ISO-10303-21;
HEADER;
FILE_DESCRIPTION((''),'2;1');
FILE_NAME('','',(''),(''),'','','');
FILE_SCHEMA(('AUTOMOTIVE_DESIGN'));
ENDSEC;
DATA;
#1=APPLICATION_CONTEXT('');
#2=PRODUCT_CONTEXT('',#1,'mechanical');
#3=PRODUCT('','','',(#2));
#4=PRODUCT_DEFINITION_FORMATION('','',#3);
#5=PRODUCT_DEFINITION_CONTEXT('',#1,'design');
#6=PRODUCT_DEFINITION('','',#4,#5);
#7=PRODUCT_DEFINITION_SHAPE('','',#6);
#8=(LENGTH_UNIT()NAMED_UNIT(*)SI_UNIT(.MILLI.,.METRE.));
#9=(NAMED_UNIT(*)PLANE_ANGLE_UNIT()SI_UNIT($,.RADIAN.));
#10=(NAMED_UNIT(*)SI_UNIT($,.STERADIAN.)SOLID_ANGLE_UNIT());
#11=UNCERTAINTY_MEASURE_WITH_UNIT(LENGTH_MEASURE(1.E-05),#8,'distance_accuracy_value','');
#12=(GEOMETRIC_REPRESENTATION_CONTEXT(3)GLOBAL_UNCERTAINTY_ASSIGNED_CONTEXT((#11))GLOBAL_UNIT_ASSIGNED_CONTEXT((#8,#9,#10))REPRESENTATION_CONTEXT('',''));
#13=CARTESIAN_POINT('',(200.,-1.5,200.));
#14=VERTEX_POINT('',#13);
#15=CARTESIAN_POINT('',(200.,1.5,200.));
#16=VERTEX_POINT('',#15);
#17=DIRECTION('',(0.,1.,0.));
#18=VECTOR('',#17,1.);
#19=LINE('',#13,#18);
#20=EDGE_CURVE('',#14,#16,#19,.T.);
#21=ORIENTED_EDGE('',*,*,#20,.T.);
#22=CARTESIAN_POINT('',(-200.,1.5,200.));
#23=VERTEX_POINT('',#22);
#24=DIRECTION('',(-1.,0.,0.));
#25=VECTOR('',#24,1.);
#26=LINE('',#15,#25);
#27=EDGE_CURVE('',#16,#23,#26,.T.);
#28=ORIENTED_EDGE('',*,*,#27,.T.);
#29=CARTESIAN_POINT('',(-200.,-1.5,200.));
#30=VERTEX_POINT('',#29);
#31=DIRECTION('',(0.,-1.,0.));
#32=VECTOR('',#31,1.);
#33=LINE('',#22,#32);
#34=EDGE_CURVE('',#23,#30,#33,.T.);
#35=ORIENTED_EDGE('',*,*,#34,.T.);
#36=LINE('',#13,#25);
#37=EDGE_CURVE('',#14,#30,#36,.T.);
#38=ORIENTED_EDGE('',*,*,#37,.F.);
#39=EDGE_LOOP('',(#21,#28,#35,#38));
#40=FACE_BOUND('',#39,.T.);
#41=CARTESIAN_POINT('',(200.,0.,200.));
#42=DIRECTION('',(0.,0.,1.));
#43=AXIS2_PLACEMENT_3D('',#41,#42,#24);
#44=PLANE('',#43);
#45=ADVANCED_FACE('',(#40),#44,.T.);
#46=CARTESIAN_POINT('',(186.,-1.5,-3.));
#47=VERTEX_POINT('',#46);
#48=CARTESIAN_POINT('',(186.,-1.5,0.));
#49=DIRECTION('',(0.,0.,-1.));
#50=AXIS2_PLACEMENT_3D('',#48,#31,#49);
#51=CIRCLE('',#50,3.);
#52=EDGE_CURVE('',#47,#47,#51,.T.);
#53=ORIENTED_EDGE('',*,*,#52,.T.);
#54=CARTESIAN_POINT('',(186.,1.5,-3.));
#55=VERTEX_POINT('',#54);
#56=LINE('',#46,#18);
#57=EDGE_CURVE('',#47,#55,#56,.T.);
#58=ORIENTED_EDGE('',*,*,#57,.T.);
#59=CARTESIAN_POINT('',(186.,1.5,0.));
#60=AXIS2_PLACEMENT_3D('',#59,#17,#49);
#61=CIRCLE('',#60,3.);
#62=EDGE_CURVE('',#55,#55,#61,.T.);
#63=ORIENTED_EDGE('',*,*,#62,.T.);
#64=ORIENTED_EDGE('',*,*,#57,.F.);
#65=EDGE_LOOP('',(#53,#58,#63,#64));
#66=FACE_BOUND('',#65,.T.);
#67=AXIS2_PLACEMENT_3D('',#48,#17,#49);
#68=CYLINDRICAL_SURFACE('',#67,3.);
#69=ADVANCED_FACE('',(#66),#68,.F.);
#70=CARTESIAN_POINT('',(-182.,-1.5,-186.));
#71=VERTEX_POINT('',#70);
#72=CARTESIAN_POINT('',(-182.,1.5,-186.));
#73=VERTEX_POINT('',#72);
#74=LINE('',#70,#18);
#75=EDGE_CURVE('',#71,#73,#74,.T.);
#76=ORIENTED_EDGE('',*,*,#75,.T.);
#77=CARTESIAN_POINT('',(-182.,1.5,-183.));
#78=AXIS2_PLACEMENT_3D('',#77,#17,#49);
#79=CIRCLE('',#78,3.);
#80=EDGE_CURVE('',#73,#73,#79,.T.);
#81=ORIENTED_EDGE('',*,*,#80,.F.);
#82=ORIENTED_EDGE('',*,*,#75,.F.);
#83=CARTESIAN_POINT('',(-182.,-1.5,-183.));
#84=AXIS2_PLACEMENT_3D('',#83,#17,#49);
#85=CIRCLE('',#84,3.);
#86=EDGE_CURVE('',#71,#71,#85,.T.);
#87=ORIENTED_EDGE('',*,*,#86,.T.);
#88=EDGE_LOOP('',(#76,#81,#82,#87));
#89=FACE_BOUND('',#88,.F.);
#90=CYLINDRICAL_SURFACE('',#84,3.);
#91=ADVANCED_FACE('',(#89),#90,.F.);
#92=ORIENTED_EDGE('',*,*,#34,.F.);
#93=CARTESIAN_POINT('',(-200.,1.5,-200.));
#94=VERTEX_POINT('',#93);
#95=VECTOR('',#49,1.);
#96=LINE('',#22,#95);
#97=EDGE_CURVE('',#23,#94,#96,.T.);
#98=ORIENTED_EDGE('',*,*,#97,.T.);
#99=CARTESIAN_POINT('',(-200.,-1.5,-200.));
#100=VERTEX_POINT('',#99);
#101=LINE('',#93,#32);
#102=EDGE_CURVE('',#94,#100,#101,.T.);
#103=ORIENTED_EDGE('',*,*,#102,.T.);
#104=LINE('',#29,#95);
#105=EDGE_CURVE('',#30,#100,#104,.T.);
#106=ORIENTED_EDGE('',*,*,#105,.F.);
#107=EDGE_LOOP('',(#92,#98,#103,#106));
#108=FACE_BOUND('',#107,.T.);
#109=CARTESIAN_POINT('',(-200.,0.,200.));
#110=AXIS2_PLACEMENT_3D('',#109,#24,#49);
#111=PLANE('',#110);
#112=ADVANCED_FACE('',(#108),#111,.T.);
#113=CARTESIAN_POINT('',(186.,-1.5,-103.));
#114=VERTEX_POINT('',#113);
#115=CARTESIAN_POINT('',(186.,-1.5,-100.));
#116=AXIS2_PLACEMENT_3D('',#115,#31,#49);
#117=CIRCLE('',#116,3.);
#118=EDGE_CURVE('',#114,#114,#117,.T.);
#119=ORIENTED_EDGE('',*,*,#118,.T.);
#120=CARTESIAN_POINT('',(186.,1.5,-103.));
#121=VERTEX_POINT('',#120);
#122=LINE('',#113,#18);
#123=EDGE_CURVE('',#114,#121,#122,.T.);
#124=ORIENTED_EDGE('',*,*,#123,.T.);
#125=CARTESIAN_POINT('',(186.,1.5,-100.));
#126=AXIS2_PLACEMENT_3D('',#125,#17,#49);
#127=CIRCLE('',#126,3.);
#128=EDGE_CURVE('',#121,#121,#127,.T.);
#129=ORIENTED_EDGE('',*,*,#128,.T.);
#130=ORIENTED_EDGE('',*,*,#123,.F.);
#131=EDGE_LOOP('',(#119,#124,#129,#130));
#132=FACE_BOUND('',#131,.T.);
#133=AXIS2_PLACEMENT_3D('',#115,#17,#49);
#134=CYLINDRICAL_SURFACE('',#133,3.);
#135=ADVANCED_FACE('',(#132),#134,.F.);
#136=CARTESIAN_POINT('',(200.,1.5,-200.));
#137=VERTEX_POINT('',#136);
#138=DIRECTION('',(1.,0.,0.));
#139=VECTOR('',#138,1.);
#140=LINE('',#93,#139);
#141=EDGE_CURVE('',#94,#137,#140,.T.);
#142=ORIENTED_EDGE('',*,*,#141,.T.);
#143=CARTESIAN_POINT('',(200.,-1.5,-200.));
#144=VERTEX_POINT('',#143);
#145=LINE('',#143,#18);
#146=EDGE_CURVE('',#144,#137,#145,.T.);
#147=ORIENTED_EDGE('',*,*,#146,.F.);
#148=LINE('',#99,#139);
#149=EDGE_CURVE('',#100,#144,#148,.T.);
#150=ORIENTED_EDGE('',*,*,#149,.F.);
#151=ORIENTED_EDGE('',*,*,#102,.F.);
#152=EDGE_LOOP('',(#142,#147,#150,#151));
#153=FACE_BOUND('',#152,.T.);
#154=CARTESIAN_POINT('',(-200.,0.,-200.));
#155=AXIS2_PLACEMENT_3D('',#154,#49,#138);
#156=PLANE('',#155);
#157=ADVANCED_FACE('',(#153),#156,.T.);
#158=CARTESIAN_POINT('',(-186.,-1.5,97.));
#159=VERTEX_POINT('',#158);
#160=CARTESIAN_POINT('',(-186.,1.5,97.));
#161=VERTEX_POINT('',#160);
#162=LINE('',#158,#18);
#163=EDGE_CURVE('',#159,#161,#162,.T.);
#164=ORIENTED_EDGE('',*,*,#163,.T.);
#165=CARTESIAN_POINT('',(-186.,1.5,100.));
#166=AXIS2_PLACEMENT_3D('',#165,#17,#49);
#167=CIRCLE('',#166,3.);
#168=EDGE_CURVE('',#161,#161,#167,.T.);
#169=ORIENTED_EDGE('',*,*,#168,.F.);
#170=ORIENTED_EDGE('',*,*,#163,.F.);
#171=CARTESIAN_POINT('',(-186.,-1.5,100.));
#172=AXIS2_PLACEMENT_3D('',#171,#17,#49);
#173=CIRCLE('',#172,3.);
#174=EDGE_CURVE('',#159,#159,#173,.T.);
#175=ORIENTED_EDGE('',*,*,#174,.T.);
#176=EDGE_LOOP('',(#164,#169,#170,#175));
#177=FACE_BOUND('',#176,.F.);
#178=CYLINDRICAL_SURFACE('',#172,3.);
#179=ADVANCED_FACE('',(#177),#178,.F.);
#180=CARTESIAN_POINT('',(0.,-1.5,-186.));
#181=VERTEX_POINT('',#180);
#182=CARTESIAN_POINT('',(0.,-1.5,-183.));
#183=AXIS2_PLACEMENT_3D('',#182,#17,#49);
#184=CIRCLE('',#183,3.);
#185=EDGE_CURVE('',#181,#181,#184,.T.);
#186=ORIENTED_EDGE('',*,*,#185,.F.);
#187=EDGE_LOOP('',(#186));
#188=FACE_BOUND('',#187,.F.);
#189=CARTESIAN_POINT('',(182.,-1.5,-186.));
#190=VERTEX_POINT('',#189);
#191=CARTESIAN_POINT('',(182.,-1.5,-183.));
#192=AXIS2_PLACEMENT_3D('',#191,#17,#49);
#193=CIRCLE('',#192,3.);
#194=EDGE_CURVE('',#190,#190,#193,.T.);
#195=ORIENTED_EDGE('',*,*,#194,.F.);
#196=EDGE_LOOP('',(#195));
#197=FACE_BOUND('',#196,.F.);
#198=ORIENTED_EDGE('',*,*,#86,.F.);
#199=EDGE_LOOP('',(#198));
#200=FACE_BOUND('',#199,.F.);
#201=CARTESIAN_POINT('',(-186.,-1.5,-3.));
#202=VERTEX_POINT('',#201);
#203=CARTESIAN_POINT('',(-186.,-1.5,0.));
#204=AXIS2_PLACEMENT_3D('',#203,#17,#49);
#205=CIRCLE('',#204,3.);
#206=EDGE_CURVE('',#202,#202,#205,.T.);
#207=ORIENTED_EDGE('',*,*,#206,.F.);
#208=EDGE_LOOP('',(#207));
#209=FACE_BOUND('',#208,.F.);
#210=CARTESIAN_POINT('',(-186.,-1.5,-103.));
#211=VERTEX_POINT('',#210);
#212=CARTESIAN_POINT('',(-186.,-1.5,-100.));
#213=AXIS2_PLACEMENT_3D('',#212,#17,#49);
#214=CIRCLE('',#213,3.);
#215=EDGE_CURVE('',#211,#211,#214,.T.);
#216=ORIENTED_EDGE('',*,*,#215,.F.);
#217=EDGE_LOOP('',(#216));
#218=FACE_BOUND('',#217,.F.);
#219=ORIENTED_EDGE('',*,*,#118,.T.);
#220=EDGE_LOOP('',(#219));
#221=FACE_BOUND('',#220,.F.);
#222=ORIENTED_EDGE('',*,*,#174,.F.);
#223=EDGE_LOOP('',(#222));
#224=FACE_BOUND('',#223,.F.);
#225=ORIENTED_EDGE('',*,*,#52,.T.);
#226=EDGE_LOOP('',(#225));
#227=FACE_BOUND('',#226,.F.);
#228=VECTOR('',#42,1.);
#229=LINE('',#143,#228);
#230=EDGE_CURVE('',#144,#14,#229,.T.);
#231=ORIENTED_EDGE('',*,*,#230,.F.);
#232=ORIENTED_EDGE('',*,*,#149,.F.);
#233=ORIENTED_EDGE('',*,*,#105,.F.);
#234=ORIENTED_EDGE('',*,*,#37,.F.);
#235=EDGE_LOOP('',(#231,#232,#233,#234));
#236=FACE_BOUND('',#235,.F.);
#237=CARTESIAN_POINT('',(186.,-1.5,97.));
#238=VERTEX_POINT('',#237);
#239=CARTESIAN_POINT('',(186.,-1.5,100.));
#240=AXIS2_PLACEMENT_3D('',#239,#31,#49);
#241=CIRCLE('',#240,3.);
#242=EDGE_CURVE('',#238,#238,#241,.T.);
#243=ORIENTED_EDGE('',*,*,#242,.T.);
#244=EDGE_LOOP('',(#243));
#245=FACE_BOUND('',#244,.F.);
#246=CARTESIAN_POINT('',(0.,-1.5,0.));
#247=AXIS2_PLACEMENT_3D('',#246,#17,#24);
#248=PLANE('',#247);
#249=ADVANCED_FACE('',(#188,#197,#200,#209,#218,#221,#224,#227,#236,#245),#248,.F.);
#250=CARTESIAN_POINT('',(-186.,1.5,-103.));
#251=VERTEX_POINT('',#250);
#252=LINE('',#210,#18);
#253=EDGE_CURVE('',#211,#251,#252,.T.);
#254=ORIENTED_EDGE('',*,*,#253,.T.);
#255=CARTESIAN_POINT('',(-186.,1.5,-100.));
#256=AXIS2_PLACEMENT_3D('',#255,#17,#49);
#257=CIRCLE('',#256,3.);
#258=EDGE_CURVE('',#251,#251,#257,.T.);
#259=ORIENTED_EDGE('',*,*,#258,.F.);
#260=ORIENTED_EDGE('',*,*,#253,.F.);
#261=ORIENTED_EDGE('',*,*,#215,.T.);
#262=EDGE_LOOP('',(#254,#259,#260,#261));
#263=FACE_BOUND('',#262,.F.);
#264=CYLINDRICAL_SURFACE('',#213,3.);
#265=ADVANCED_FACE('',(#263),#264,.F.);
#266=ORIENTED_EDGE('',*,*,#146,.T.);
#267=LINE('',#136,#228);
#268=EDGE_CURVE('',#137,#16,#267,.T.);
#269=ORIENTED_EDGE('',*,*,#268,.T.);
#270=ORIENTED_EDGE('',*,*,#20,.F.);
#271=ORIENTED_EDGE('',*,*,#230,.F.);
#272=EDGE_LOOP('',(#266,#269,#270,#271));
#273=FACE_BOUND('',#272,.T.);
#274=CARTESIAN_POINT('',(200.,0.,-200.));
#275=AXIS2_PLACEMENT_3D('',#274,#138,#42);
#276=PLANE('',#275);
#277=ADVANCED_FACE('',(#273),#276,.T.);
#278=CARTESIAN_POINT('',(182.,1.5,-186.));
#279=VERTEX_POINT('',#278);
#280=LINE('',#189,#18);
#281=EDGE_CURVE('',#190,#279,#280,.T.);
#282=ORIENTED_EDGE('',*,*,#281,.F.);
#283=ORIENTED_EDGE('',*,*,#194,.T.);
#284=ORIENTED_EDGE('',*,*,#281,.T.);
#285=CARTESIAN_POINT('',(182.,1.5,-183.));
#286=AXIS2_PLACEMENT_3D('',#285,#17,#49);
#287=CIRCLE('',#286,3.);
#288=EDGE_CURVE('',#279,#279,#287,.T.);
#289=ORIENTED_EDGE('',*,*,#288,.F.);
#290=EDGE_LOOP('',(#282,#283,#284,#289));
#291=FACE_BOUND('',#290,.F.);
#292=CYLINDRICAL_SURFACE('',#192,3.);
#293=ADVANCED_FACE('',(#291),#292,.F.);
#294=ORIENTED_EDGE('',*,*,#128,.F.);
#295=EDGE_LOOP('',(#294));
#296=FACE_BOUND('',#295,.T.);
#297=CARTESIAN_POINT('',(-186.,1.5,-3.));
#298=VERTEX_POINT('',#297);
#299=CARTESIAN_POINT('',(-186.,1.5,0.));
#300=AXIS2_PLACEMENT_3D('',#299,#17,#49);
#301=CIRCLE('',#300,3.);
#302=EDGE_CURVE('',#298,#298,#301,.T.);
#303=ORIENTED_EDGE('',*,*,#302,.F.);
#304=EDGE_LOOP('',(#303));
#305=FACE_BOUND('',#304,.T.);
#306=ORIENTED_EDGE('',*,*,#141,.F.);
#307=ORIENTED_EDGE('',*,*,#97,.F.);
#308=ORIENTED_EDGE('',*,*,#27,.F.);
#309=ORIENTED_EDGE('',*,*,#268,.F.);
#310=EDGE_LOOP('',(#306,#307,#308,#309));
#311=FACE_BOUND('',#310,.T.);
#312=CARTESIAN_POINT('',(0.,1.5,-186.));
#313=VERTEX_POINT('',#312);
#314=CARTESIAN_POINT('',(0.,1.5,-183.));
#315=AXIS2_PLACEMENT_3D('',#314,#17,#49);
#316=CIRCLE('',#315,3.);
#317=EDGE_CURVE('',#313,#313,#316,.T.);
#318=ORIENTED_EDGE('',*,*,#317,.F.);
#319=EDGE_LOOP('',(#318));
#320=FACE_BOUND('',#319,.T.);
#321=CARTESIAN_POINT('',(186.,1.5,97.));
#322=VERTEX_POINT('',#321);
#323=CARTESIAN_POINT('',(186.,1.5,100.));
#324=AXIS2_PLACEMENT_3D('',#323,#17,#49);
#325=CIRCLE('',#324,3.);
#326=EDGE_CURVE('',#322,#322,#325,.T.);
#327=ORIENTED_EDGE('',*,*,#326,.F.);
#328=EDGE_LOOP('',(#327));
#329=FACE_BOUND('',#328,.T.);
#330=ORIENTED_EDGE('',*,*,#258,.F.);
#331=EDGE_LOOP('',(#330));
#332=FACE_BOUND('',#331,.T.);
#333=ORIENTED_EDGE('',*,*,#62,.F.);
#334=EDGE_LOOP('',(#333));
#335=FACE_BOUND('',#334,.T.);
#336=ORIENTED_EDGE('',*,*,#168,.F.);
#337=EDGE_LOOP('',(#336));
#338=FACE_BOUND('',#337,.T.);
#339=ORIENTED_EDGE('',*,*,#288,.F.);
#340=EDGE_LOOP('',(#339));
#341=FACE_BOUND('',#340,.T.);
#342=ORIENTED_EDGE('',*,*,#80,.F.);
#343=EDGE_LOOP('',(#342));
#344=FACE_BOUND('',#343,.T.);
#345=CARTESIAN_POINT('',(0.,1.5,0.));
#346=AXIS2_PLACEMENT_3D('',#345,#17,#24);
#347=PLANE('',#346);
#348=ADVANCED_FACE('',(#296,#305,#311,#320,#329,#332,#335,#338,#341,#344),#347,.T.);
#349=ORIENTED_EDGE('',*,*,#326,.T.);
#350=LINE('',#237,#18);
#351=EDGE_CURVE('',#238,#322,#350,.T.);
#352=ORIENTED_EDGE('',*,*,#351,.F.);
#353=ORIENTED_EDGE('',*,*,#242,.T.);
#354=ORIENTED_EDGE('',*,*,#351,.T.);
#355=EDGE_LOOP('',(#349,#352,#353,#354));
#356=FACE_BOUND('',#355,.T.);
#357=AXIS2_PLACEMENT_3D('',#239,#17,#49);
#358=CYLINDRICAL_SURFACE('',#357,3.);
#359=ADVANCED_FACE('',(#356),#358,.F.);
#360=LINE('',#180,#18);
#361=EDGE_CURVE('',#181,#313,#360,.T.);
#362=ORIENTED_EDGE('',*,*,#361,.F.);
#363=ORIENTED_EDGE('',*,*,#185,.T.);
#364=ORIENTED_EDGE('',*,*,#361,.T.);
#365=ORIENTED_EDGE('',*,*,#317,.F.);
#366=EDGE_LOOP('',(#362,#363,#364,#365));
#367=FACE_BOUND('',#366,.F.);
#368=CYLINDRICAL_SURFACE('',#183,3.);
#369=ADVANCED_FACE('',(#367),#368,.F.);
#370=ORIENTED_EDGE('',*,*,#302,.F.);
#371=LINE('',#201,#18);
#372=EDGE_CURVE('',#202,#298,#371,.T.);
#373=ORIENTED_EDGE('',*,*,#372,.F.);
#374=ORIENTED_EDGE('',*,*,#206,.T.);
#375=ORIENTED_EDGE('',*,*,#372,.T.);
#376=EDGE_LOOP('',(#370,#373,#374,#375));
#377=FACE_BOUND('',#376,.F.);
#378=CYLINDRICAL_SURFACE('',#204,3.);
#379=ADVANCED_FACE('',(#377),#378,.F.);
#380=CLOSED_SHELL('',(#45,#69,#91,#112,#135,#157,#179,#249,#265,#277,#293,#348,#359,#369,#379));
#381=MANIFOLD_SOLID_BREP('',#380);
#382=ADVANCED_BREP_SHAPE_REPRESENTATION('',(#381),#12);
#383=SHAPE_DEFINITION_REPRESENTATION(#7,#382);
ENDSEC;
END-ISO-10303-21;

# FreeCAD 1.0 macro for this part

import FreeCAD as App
import Part
import Sketcher
from FreeCAD import Vector

doc = App.newDocument("Part")
body = doc.addObject("PartDesign::Body", "Body")

# Sketch on XZ plane
sketch1 = body.newObject("Sketcher::SketchObject", "Sketch")
sketch1.AttachmentSupport = (doc.getObject("XZ_Plane"), [""])
sketch1.MapMode = "FlatFace"
sketch1.addGeometry(Part.LineSegment(Vector(-200, 200, 0), Vector(200, 200, 0)), False)
sketch1.addGeometry(Part.LineSegment(Vector(200, 200, 0), Vector(200, -200, 0)), False)
sketch1.addGeometry(Part.LineSegment(Vector(200, -200, 0), Vector(-200, -200, 0)), False)
sketch1.addGeometry(Part.LineSegment(Vector(-200, -200, 0), Vector(-200, 200, 0)), False)
sketch1.addConstraint(Sketcher.Constraint("Coincident", 0, 2, 1, 1))
sketch1.addConstraint(Sketcher.Constraint("Coincident", 1, 2, 2, 1))
sketch1.addConstraint(Sketcher.Constraint("Coincident", 2, 2, 3, 1))
sketch1.addConstraint(Sketcher.Constraint("Coincident", 3, 2, 0, 1))
sketch1.addConstraint(Sketcher.Constraint("Horizontal", 0))
sketch1.addConstraint(Sketcher.Constraint("Vertical", 1))
sketch1.addConstraint(Sketcher.Constraint("Horizontal", 2))
sketch1.addConstraint(Sketcher.Constraint("Vertical", 3))
sketch1.addConstraint(Sketcher.Constraint("Symmetric", 0, 2, 2, 2, -1, 1))
sketch1.addConstraint(Sketcher.Constraint("Equal", 2, 1))
sketch1.addConstraint(Sketcher.Constraint("DistanceX", 0, 1, 0, 2, 400.0))
pad1 = body.newObject("PartDesign::Pad", "Pad")
pad1.Profile = sketch1
pad1.Length = 3
pad1.Midplane = True

# Sketch on XZ plane
sketch2 = body.newObject("Sketcher::SketchObject", "Sketch001")
sketch2.AttachmentSupport = (doc.getObject("XZ_Plane"), [""])
sketch2.MapMode = "FlatFace"
sketch2.AttachmentOffset = App.Placement(Vector(0, 0, 1.5), App.Rotation())
sketch2.addGeometry(Part.Circle(Vector(-182, -183, 0), Vector(0, 0, 1), 3), False)
sketch2.addGeometry(Part.Circle(Vector(0, -183, 0), Vector(0, 0, 1), 3), False)
sketch2.addGeometry(Part.Circle(Vector(182, -183, 0), Vector(0, 0, 1), 3), False)
sketch2.addConstraint(Sketcher.Constraint("Equal", 0, 1))
sketch2.addConstraint(Sketcher.Constraint("Equal", 1, 2))
sketch2.addConstraint(Sketcher.Constraint("Symmetric", 0, 3, 2, 3, -2))
sketch2.addConstraint(Sketcher.Constraint("PointOnObject", 1, 3, -2))
sketch2.addConstraint(Sketcher.Constraint("Horizontal", 0, 3, 1, 3))
sketch2.addConstraint(Sketcher.Constraint("Diameter", 0, 6.0))
sketch2.addConstraint(Sketcher.Constraint("DistanceX", 0, 3, -1, 1, 182.0))
sketch2.addConstraint(Sketcher.Constraint("DistanceY", 0, 3, -1, 1, 183.0))
doc.recompute()
hole = body.newObject("PartDesign::Hole", "Hole")
hole.Profile = sketch2
hole.ThreadType = "None"
hole.Diameter = 6
hole.DepthType = "Dimension"
hole.Depth = 14.2
hole.DrillPoint = "Angled"
hole.DrillPointAngle = 118

# Sketch on XZ plane
sketch3 = body.newObject("Sketcher::SketchObject", "Sketch002")
sketch3.AttachmentSupport = (doc.getObject("XZ_Plane"), [""])
sketch3.MapMode = "FlatFace"
sketch3.AttachmentOffset = App.Placement(Vector(0, 0, 1.5), App.Rotation())
sketch3.addGeometry(Part.Circle(Vector(-186, 100, 0), Vector(0, 0, 1), 3), False)
sketch3.addGeometry(Part.Circle(Vector(-186, 0, 0), Vector(0, 0, 1), 3), False)
sketch3.addGeometry(Part.Circle(Vector(-186, -100, 0), Vector(0, 0, 1), 3), False)
sketch3.addConstraint(Sketcher.Constraint("Equal", 0, 1))
sketch3.addConstraint(Sketcher.Constraint("Equal", 1, 2))
sketch3.addConstraint(Sketcher.Constraint("Symmetric", 0, 3, 2, 3, -1))
sketch3.addConstraint(Sketcher.Constraint("PointOnObject", 1, 3, -1))
sketch3.addConstraint(Sketcher.Constraint("Vertical", 0, 3, 1, 3))
sketch3.addConstraint(Sketcher.Constraint("Diameter", 0, 6.0))
sketch3.addConstraint(Sketcher.Constraint("DistanceX", 0, 3, -1, 1, 186.0))
sketch3.addConstraint(Sketcher.Constraint("DistanceY", -1, 1, 0, 3, 100.0))
doc.recompute()
hole2 = body.newObject("PartDesign::Hole", "Hole001")
hole2.Profile = sketch3
hole2.ThreadType = "None"
hole2.Diameter = 6
hole2.DepthType = "Dimension"
hole2.Depth = 14.2
hole2.DrillPoint = "Angled"
hole2.DrillPointAngle = 118
doc.recompute()

mirrored = body.newObject("PartDesign::Mirrored", "Mirrored")
mirrored.Originals = [hole2]
mirrored.MirrorPlane = (doc.getObject("YZ_Plane"), [""])
body.Tip = mirrored

doc.recompute()
